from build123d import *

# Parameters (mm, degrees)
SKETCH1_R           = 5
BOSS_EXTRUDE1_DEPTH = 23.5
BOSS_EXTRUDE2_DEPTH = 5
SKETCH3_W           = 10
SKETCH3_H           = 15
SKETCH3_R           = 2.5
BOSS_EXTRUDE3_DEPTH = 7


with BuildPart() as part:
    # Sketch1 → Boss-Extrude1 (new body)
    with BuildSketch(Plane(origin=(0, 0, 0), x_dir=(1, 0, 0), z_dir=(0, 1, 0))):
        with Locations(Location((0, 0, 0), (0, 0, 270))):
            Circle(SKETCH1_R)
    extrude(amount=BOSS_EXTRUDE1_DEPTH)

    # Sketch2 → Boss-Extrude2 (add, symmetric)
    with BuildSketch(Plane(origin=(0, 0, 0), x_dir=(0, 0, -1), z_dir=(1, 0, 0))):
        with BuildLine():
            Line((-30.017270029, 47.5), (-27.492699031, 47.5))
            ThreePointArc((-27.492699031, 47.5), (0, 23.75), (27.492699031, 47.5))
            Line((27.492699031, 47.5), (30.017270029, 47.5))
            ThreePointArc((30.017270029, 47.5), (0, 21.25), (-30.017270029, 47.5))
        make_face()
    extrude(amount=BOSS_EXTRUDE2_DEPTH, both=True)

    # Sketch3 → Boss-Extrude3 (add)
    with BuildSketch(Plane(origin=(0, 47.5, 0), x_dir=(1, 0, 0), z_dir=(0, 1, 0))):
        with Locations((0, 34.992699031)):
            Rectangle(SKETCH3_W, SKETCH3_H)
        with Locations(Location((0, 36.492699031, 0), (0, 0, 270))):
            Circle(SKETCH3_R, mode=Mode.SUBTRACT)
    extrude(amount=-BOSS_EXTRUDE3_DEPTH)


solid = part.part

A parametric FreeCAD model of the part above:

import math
import FreeCAD as App
import Part
import Sketcher

V = App.Vector
Q = App.Units.Quantity


def add_polygon(sketch, points):
    """Adds a closed chain of lines whose ends are joined by coincident constraints."""
    first, n = sketch.GeometryCount, len(points)
    for a, b in zip(points, points[1:] + points[:1]):
        sketch.addGeometry(Part.LineSegment(App.Vector(*a, 0), App.Vector(*b, 0)), False)
    for i in range(n):
        sketch.addConstraint(Sketcher.Constraint("Coincident", first + i, 2, first + (i + 1) % n, 1))

doc = App.newDocument("Part")
params = doc.addObject("Spreadsheet::Sheet", "Params")
for row, (alias, value) in enumerate([
    ("sketch1_diameter", "10 mm"),
    ("pad1_length", "23.5 mm"),
    ("pad2_length", "10 mm"),
    ("sketch3_diameter", "5 mm"),
    ("sketch3_width", "10 mm"),
    ("sketch3_height", "15 mm"),
    ("pad3_length", "7 mm"),
], start=1):
    params.set(f"A{row}", alias)
    params.set(f"B{row}", "=" + value)
    params.setAlias(f"B{row}", alias)

body = doc.addObject("PartDesign::Body", "Body")

# Sketch on XZ plane
sketch1 = doc.addObject("Sketcher::SketchObject", "Sketch")
body.addObject(sketch1)
sketch1.AttachmentSupport = (doc.XZ_Plane, [""])
sketch1.MapMode = "FlatFace"
sketch1.addGeometry(Part.Circle(V(0, 0, 0), V(0, 0, 1), 5), False)
sketch1.addConstraint([
    Sketcher.Constraint("Coincident", 0, 3, -1, 1),
    Sketcher.Constraint("Diameter", 0, Q("10 mm")),
])
sketch1.setExpression("Constraints[1]", "Params.sketch1_diameter")
pad1 = doc.addObject("PartDesign::Pad", "Pad")
body.addObject(pad1)
pad1.Profile = sketch1
pad1.setExpression("Length", "Params.pad1_length")
pad1.Reversed = True

# Sketch on YZ plane
sketch2 = doc.addObject("Sketcher::SketchObject", "Sketch001")
body.addObject(sketch2)
sketch2.AttachmentSupport = (doc.YZ_Plane, [""])
sketch2.MapMode = "FlatFace"
sketch2.addGeometry([
    Part.LineSegment(V(47.5, 27.492699, 0), V(47.5, 30.01727, 0)),
    Part.ArcOfCircle(Part.Circle(V(51.5376, 0, 0), V(0, 0, 1), 30.2876), math.radians(97.66083), math.radians(262.33917)),
    Part.LineSegment(V(47.5, -30.01727, 0), V(47.5, -27.492699, 0)),
    Part.ArcOfCircle(Part.Circle(V(51.5376, 0, 0), V(0, 0, 1), 27.7876), math.radians(98.354781), math.radians(261.645219)),
], False)
sketch2.addConstraint([
    Sketcher.Constraint("Coincident", 0, 2, 1, 1),
    Sketcher.Constraint("Coincident", 1, 2, 2, 1),
    Sketcher.Constraint("Coincident", 2, 2, 3, 2),
    Sketcher.Constraint("Coincident", 3, 1, 0, 1),
    Sketcher.Constraint("Vertical", 0),
    Sketcher.Constraint("Vertical", 2),
    Sketcher.Constraint("Coincident", 3, 3, 1, 3),
    Sketcher.Constraint("Symmetric", 0, 2, 1, 2, -1),
    Sketcher.Constraint("DistanceX", -1, 1, 0, 2, Q("47.5 mm")),
    Sketcher.Constraint("Radius", 1, Q("30.2876 mm")),
    Sketcher.Constraint("Radius", 3, Q("27.7876 mm")),
    Sketcher.Constraint("DistanceY", 0, 1, 0, 2, Q("2.524571 mm")),
])
pad2 = doc.addObject("PartDesign::Pad", "Pad001")
body.addObject(pad2)
pad2.Profile = sketch2
pad2.setExpression("Length", "Params.pad2_length")
pad2.Midplane = True

# Sketch on XZ plane
sketch3 = doc.addObject("Sketcher::SketchObject", "Sketch002")
body.addObject(sketch3)
sketch3.AttachmentSupport = (doc.XZ_Plane, [""])
sketch3.MapMode = "FlatFace"
sketch3.AttachmentOffset = App.Placement(V(0, 0, -47.5), App.Rotation())
add_polygon(sketch3, [(-5, -42.492699), (-5, -27.492699), (5, -27.492699), (5, -42.492699)])  # lines 0-3
sketch3.addGeometry(Part.Circle(V(0, -36.492699, 0), V(0, 0, 1), 2.5), False)  # 4
sketch3.addConstraint([
    Sketcher.Constraint("Vertical", 0),
    Sketcher.Constraint("Horizontal", 1),
    Sketcher.Constraint("Vertical", 2),
    Sketcher.Constraint("Horizontal", 3),
    Sketcher.Constraint("PointOnObject", 4, 3, -2),
    Sketcher.Constraint("Diameter", 4, Q("5 mm")),
    Sketcher.Constraint("DistanceX", 1, 1, 1, 2, Q("10 mm")),
    Sketcher.Constraint("DistanceY", 0, 1, 0, 2, Q("15 mm")),
    Sketcher.Constraint("DistanceX", 0, 2, -1, 1, Q("5 mm")),
    Sketcher.Constraint("DistanceY", 4, 3, 0, 2, Q("9 mm")),
    Sketcher.Constraint("DistanceY", 4, 3, -1, 1, Q("36.492699 mm")),
])
sketch3.setExpression("Constraints[9]", "Params.sketch3_diameter")
sketch3.setExpression("Constraints[10]", "Params.sketch3_width")
sketch3.setExpression("Constraints[11]", "Params.sketch3_height")
pad3 = doc.addObject("PartDesign::Pad", "Pad002")
body.addObject(pad3)
pad3.Profile = sketch3
pad3.setExpression("Length", "Params.pad3_length")

doc.recompute()
